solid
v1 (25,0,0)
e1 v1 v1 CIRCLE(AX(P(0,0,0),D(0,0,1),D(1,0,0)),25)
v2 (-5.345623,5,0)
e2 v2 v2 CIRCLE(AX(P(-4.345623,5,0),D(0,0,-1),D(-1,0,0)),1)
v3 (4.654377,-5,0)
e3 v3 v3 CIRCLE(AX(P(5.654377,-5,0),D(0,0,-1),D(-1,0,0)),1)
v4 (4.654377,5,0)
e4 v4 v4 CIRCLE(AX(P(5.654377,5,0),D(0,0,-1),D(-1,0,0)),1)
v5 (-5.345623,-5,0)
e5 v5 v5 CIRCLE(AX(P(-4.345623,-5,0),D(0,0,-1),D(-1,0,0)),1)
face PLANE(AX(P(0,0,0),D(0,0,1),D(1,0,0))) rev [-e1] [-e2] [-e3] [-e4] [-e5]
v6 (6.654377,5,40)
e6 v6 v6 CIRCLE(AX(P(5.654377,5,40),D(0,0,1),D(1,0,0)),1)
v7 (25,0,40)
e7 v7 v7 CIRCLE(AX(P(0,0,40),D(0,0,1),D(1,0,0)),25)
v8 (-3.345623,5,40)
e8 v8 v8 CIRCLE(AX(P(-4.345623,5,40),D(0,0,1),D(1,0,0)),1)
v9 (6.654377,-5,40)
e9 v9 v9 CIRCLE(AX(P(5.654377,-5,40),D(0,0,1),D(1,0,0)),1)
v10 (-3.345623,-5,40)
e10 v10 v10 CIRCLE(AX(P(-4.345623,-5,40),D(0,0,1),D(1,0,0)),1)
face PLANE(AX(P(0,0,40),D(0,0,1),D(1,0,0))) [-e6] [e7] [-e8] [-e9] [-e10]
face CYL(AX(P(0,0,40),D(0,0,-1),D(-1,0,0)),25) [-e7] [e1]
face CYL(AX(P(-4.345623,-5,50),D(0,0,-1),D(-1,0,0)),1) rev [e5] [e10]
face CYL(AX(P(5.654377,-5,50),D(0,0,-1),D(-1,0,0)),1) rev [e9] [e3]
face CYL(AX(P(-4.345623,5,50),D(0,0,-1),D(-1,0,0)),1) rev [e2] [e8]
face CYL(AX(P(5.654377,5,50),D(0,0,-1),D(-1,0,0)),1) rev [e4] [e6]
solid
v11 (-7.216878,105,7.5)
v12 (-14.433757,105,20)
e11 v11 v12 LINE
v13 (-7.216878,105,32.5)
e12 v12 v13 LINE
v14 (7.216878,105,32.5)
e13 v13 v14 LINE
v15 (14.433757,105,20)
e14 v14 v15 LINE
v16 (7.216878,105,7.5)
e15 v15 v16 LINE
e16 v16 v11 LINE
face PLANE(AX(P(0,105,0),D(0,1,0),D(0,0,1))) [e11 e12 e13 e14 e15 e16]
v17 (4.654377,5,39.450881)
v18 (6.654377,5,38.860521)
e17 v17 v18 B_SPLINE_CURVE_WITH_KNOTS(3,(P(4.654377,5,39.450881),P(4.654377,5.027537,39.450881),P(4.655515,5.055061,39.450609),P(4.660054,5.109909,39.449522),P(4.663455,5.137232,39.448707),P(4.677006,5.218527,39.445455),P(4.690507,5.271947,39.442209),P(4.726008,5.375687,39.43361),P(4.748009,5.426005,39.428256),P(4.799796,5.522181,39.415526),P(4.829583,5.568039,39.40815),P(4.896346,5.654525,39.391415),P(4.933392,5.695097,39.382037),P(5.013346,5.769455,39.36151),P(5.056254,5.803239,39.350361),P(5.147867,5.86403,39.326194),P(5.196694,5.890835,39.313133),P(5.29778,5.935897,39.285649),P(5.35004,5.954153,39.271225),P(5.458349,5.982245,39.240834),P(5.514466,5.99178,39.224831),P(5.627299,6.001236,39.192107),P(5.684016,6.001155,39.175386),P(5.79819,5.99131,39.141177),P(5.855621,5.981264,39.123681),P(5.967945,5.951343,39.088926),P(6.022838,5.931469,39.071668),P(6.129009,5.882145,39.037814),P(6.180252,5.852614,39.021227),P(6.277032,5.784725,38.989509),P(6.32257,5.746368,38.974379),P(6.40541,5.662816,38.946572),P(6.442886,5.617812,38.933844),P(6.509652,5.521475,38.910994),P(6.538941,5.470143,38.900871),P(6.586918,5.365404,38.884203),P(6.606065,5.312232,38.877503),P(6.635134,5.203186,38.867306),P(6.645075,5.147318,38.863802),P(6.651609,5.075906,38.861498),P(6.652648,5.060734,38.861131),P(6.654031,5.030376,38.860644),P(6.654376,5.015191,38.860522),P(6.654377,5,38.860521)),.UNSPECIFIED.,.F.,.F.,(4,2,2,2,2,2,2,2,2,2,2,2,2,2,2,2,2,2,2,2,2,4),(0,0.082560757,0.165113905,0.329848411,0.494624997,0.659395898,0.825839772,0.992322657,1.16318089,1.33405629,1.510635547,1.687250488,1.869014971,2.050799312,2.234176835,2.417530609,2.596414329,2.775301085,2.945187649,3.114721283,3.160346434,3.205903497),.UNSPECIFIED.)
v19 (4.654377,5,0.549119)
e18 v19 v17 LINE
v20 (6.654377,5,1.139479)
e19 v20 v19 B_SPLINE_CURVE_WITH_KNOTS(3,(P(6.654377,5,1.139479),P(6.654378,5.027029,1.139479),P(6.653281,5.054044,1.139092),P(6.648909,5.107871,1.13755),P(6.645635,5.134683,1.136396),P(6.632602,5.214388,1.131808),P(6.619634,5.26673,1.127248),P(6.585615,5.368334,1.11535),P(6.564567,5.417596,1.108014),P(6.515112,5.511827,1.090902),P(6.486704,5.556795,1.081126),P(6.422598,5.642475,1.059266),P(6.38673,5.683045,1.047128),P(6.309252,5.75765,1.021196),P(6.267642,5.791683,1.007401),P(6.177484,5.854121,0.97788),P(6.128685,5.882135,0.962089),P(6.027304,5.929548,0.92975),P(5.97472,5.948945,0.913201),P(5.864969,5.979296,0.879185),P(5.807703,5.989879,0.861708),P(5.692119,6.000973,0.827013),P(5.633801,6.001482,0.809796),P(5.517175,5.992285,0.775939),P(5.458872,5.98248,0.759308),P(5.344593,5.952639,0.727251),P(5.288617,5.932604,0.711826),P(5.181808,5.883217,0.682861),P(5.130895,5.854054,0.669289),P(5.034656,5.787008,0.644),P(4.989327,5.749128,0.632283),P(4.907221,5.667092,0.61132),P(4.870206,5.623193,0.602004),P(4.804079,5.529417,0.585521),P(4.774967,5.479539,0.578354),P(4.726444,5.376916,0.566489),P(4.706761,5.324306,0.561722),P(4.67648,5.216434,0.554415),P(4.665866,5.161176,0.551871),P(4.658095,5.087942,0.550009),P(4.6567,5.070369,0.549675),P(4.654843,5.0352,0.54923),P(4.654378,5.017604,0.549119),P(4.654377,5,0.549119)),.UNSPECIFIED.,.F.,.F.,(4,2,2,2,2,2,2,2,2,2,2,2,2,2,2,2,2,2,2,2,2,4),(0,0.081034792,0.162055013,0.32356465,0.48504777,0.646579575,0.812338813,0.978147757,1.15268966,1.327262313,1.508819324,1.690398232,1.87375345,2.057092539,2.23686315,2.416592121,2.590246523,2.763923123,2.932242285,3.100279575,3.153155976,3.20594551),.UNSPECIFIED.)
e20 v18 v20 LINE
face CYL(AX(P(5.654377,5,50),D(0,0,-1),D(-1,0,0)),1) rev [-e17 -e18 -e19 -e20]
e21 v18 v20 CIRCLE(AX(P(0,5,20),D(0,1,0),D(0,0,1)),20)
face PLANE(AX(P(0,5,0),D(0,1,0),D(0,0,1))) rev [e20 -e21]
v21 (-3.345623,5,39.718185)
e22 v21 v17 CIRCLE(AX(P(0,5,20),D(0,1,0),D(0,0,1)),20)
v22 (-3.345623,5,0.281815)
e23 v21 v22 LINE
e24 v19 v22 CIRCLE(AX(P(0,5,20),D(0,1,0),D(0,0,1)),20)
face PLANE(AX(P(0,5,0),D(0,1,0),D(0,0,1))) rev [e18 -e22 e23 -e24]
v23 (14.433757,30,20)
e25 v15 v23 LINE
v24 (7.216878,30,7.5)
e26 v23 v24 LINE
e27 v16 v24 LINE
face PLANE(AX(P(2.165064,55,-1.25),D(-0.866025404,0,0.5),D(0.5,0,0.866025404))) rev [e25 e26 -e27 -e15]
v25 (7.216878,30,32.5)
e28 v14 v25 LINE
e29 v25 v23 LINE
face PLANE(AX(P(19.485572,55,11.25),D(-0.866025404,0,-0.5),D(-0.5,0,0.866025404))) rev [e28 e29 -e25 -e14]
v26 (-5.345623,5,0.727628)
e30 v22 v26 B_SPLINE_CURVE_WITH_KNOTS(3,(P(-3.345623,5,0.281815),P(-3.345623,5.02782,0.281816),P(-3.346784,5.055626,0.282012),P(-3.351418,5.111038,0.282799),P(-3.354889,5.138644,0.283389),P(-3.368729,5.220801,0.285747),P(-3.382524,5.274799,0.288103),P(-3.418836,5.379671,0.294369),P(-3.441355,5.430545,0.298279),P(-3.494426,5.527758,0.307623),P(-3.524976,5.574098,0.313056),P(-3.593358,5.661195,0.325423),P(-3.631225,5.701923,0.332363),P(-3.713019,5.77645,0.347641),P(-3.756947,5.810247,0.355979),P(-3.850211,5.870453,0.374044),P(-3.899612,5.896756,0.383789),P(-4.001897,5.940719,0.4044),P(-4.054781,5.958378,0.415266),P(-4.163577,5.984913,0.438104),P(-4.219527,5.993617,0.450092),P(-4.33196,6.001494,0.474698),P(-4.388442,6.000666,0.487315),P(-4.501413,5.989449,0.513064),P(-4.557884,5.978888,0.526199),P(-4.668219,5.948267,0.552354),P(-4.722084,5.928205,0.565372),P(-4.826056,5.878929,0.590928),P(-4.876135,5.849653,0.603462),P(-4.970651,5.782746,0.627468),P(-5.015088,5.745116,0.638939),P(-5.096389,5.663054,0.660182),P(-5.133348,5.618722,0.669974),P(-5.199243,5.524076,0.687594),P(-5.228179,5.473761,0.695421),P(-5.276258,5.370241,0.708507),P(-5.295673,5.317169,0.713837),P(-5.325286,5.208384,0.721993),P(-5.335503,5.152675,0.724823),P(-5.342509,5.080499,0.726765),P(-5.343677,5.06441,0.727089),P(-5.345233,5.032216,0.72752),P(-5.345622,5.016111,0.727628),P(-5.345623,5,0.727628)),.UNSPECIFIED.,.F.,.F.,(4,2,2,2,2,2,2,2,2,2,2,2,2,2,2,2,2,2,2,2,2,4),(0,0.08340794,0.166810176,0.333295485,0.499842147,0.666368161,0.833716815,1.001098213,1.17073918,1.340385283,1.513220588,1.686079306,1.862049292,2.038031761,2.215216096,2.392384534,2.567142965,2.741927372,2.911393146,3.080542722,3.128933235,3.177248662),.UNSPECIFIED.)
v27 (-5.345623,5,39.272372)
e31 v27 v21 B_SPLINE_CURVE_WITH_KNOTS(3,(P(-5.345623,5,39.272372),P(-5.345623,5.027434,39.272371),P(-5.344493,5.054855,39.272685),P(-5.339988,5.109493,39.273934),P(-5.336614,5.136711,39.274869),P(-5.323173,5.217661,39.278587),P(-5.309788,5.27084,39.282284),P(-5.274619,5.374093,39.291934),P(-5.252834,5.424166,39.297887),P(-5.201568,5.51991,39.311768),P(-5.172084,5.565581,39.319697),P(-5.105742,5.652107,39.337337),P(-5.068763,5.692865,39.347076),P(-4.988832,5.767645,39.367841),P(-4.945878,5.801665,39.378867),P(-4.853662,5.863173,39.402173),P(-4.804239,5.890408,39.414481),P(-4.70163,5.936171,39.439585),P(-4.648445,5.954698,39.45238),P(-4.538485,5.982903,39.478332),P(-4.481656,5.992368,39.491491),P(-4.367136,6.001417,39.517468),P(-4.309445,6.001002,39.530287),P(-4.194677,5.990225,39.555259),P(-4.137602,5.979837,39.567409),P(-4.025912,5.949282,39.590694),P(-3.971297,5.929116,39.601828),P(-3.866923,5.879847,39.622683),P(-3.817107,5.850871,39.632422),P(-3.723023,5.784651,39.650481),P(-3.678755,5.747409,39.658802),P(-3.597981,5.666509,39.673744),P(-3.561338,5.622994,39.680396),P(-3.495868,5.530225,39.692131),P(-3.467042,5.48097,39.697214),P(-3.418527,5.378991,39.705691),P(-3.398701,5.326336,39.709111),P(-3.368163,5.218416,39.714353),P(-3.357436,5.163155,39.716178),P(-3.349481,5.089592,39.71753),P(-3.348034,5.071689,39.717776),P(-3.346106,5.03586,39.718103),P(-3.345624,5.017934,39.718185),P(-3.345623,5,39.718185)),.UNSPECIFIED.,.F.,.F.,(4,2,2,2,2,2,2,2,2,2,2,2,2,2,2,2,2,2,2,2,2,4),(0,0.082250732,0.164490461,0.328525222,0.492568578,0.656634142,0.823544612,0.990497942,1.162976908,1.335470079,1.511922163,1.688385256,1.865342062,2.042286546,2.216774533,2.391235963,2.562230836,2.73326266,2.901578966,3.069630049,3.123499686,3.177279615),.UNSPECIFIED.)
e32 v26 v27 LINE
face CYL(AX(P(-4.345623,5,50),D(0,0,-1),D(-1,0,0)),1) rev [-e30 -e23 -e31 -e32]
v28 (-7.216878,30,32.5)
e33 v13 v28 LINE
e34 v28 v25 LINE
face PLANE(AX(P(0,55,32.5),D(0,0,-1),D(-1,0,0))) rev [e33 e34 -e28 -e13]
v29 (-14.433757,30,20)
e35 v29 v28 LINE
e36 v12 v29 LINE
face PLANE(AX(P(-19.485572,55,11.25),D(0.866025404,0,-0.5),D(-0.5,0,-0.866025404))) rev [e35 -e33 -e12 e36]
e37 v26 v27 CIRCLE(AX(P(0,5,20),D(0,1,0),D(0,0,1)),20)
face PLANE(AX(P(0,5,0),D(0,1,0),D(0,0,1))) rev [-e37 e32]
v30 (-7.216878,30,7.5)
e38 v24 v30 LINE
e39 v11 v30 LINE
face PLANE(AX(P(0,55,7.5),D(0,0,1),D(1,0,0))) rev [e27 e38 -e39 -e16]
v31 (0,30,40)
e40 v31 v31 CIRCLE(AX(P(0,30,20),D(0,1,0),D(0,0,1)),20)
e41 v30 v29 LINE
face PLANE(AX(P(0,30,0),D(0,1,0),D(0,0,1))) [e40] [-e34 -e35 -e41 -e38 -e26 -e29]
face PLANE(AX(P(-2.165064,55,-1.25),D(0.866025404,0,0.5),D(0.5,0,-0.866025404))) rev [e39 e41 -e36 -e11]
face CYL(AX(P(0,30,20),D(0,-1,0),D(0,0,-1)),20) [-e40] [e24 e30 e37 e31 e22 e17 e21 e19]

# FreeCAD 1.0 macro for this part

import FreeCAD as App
import Part
import Sketcher
from FreeCAD import Vector
Q = App.Units.Quantity

doc = App.newDocument("Part")
params = doc.addObject("Spreadsheet::Sheet", "Params")
for row, (alias, value) in enumerate([
    ("sketch1_diameter", "50 mm"),
    ("pad1_length", "40 mm"),
    ("sketch2_diameter", "40 mm"),
    ("pad2_length", "25 mm"),
    ("pad3_length", "25 mm"),
    ("pad4_length", "50 mm"),
    ("sketch5_diameter", "2 mm"),
    ("pad5_length", "50 mm"),
], start=1):
    params.set(f"A{row}", alias)
    params.set(f"B{row}", "=" + value)
    params.setAlias(f"B{row}", alias)

body = doc.addObject("PartDesign::Body", "Body")

# Sketch on XY plane
sketch1 = body.newObject("Sketcher::SketchObject", "Sketch")
sketch1.AttachmentSupport = (doc.getObject("XY_Plane"), [""])
sketch1.MapMode = "FlatFace"
sketch1.addGeometry(Part.Circle(Vector(0, 0, 0), Vector(0, 0, 1), 25), False)
sketch1.addConstraint(Sketcher.Constraint("Coincident", 0, 3, -1, 1))
sketch1.addConstraint(Sketcher.Constraint("Diameter", 0, Q("50 mm")))
sketch1.setExpression("Constraints[1]", "Params.sketch1_diameter")
pad1 = body.newObject("PartDesign::Pad", "Pad")
pad1.Profile = sketch1
pad1.setExpression("Length", "Params.pad1_length")
body2 = doc.addObject("PartDesign::Body", "Body001")

# Sketch on XZ plane
sketch2 = body2.newObject("Sketcher::SketchObject", "Sketch001")
sketch2.AttachmentSupport = (doc.getObject("XZ_Plane001"), [""])
sketch2.MapMode = "FlatFace"
sketch2.AttachmentOffset = App.Placement(Vector(0, 0, -5), App.Rotation())
sketch2.addGeometry(Part.Circle(Vector(0, 20, 0), Vector(0, 0, 1), 20), False)
sketch2.addConstraint(Sketcher.Constraint("PointOnObject", 0, 3, -2))
sketch2.addConstraint(Sketcher.Constraint("Diameter", 0, Q("40 mm")))
sketch2.addConstraint(Sketcher.Constraint("DistanceY", -1, 1, 0, 3, Q("20 mm")))
sketch2.setExpression("Constraints[1]", "Params.sketch2_diameter")
pad2 = body2.newObject("PartDesign::Pad", "Pad001")
pad2.Profile = sketch2
pad2.setExpression("Length", "Params.pad2_length")
pad2.Reversed = True

# Sketch on XZ plane
sketch3 = body2.newObject("Sketcher::SketchObject", "Sketch002")
sketch3.AttachmentSupport = (doc.getObject("XZ_Plane001"), [""])
sketch3.MapMode = "FlatFace"
sketch3.AttachmentOffset = App.Placement(Vector(0, 0, -30), App.Rotation())
sketch3.addGeometry(Part.LineSegment(Vector(-7, 8, 0), Vector(-14, 20, 0)), False)
sketch3.addGeometry(Part.LineSegment(Vector(-14, 20, 0), Vector(-7, 32, 0)), False)
sketch3.addGeometry(Part.LineSegment(Vector(-7, 32, 0), Vector(7, 32, 0)), False)
sketch3.addGeometry(Part.LineSegment(Vector(7, 32, 0), Vector(14, 20, 0)), False)
sketch3.addGeometry(Part.LineSegment(Vector(14, 20, 0), Vector(7, 8, 0)), False)
sketch3.addGeometry(Part.LineSegment(Vector(7, 8, 0), Vector(-7, 8, 0)), False)
sketch3.addConstraint(Sketcher.Constraint("Coincident", 0, 2, 1, 1))
sketch3.addConstraint(Sketcher.Constraint("Coincident", 1, 2, 2, 1))
sketch3.addConstraint(Sketcher.Constraint("Coincident", 2, 2, 3, 1))
sketch3.addConstraint(Sketcher.Constraint("Coincident", 3, 2, 4, 1))
sketch3.addConstraint(Sketcher.Constraint("Coincident", 4, 2, 5, 1))
sketch3.addConstraint(Sketcher.Constraint("Coincident", 5, 2, 0, 1))
sketch3.addConstraint(Sketcher.Constraint("Horizontal", 2))
sketch3.addConstraint(Sketcher.Constraint("Horizontal", 5))
sketch3.addConstraint(Sketcher.Constraint("Symmetric", 0, 2, 3, 2, -2))
sketch3.addConstraint(Sketcher.Constraint("Parallel", 0, 3))
sketch3.addConstraint(Sketcher.Constraint("Parallel", 1, 4))
sketch3.addConstraint(Sketcher.Constraint("Vertical", 2, 2, 4, 2))
sketch3.addConstraint(Sketcher.Constraint("Vertical", 1, 2, 5, 2))
sketch3.addConstraint(Sketcher.Constraint("Angle", 0, Q("120 deg")))
sketch3.addConstraint(Sketcher.Constraint("DistanceY", -1, 1, 0, 2, Q("20 mm")))
sketch3.addConstraint(Sketcher.Constraint("DistanceY", 4, 2, 2, 2, Q("25 mm")))
sketch3.addConstraint(Sketcher.Constraint("DistanceX", 2, 1, 2, 2, Q("14.433757 mm")))
pad3 = body2.newObject("PartDesign::Pad", "Pad002")
pad3.Profile = sketch3
pad3.setExpression("Length", "Params.pad3_length")
pad3.Reversed = True

# Sketch on XZ plane
sketch4 = body2.newObject("Sketcher::SketchObject", "Sketch003")
sketch4.AttachmentSupport = (doc.getObject("XZ_Plane001"), [""])
sketch4.MapMode = "FlatFace"
sketch4.AttachmentOffset = App.Placement(Vector(0, 0, -55), App.Rotation())
sketch4.addGeometry(Part.LineSegment(Vector(7, 32, 0), Vector(14, 20, 0)), False)
sketch4.addGeometry(Part.LineSegment(Vector(14, 20, 0), Vector(7, 8, 0)), False)
sketch4.addGeometry(Part.LineSegment(Vector(7, 8, 0), Vector(-7, 8, 0)), False)
sketch4.addGeometry(Part.LineSegment(Vector(-7, 8, 0), Vector(-14, 20, 0)), False)
sketch4.addGeometry(Part.LineSegment(Vector(-14, 20, 0), Vector(-7, 32, 0)), False)
sketch4.addGeometry(Part.LineSegment(Vector(-7, 32, 0), Vector(7, 32, 0)), False)
sketch4.addConstraint(Sketcher.Constraint("Coincident", 0, 2, 1, 1))
sketch4.addConstraint(Sketcher.Constraint("Coincident", 1, 2, 2, 1))
sketch4.addConstraint(Sketcher.Constraint("Coincident", 2, 2, 3, 1))
sketch4.addConstraint(Sketcher.Constraint("Coincident", 3, 2, 4, 1))
sketch4.addConstraint(Sketcher.Constraint("Coincident", 4, 2, 5, 1))
sketch4.addConstraint(Sketcher.Constraint("Coincident", 5, 2, 0, 1))
sketch4.addConstraint(Sketcher.Constraint("Horizontal", 2))
sketch4.addConstraint(Sketcher.Constraint("Horizontal", 5))
sketch4.addConstraint(Sketcher.Constraint("Symmetric", 0, 2, 3, 2, -2))
sketch4.addConstraint(Sketcher.Constraint("Parallel", 0, 3))
sketch4.addConstraint(Sketcher.Constraint("Parallel", 1, 4))
sketch4.addConstraint(Sketcher.Constraint("Vertical", 2, 2, 4, 2))
sketch4.addConstraint(Sketcher.Constraint("Vertical", 1, 2, 5, 2))
sketch4.addConstraint(Sketcher.Constraint("Angle", 0, Q("-60 deg")))
sketch4.addConstraint(Sketcher.Constraint("DistanceY", -1, 1, 0, 2, Q("20 mm")))
sketch4.addConstraint(Sketcher.Constraint("DistanceY", 2, 2, 4, 2, Q("25 mm")))
sketch4.addConstraint(Sketcher.Constraint("DistanceX", 2, 2, 2, 1, Q("14.433757 mm")))
pad4 = body2.newObject("PartDesign::Pad", "Pad003")
pad4.Profile = sketch4
pad4.setExpression("Length", "Params.pad4_length")
pad4.Reversed = True
body3 = doc.addObject("PartDesign::Body", "Body002")
body3.AllowCompound = True

# Sketch on XY plane
sketch5 = body3.newObject("Sketcher::SketchObject", "Sketch004")
sketch5.AttachmentSupport = (doc.getObject("XY_Plane002"), [""])
sketch5.MapMode = "FlatFace"
sketch5.addGeometry(Part.Circle(Vector(5.7, 5, 0), Vector(0, 0, 1), 1), False)
sketch5.addGeometry(Part.Circle(Vector(-4.3, 5, 0), Vector(0, 0, 1), 1), False)
sketch5.addGeometry(Part.Circle(Vector(-4.3, -5, 0), Vector(0, 0, 1), 1), False)
sketch5.addGeometry(Part.Circle(Vector(5.7, -5, 0), Vector(0, 0, 1), 1), False)
sketch5.addConstraint(Sketcher.Constraint("Equal", 0, 1))
sketch5.addConstraint(Sketcher.Constraint("Equal", 1, 2))
sketch5.addConstraint(Sketcher.Constraint("Equal", 2, 3))
sketch5.addConstraint(Sketcher.Constraint("Symmetric", 1, 3, 2, 3, -1))
sketch5.addConstraint(Sketcher.Constraint("Symmetric", 0, 3, 3, 3, -1))
sketch5.addConstraint(Sketcher.Constraint("Horizontal", 0, 3, 1, 3))
sketch5.addConstraint(Sketcher.Constraint("Diameter", 0, Q("2 mm")))
sketch5.addConstraint(Sketcher.Constraint("DistanceY", -1, 1, 0, 3, Q("5 mm")))
sketch5.addConstraint(Sketcher.Constraint("DistanceX", 1, 3, 0, 3, Q("10 mm")))
sketch5.addConstraint(Sketcher.Constraint("DistanceX", -1, 1, 0, 3, Q("5.654377 mm")))
sketch5.setExpression("Constraints[6]", "Params.sketch5_diameter")
pad5 = body3.newObject("PartDesign::Pad", "Pad004")
pad5.Profile = sketch5
pad5.setExpression("Length", "Params.pad5_length")
doc.recompute()

body4 = doc.addObject("PartDesign::Body", "Body003")
body4.BaseFeature = body3
boolean = body.newObject("PartDesign::Boolean", "Boolean")
boolean.Type = "Cut"
boolean.addObjects([body4])
doc.recompute()

boolean2 = body2.newObject("PartDesign::Boolean", "Boolean001")
boolean2.Type = "Cut"
boolean2.addObjects([body3])

doc.recompute()
